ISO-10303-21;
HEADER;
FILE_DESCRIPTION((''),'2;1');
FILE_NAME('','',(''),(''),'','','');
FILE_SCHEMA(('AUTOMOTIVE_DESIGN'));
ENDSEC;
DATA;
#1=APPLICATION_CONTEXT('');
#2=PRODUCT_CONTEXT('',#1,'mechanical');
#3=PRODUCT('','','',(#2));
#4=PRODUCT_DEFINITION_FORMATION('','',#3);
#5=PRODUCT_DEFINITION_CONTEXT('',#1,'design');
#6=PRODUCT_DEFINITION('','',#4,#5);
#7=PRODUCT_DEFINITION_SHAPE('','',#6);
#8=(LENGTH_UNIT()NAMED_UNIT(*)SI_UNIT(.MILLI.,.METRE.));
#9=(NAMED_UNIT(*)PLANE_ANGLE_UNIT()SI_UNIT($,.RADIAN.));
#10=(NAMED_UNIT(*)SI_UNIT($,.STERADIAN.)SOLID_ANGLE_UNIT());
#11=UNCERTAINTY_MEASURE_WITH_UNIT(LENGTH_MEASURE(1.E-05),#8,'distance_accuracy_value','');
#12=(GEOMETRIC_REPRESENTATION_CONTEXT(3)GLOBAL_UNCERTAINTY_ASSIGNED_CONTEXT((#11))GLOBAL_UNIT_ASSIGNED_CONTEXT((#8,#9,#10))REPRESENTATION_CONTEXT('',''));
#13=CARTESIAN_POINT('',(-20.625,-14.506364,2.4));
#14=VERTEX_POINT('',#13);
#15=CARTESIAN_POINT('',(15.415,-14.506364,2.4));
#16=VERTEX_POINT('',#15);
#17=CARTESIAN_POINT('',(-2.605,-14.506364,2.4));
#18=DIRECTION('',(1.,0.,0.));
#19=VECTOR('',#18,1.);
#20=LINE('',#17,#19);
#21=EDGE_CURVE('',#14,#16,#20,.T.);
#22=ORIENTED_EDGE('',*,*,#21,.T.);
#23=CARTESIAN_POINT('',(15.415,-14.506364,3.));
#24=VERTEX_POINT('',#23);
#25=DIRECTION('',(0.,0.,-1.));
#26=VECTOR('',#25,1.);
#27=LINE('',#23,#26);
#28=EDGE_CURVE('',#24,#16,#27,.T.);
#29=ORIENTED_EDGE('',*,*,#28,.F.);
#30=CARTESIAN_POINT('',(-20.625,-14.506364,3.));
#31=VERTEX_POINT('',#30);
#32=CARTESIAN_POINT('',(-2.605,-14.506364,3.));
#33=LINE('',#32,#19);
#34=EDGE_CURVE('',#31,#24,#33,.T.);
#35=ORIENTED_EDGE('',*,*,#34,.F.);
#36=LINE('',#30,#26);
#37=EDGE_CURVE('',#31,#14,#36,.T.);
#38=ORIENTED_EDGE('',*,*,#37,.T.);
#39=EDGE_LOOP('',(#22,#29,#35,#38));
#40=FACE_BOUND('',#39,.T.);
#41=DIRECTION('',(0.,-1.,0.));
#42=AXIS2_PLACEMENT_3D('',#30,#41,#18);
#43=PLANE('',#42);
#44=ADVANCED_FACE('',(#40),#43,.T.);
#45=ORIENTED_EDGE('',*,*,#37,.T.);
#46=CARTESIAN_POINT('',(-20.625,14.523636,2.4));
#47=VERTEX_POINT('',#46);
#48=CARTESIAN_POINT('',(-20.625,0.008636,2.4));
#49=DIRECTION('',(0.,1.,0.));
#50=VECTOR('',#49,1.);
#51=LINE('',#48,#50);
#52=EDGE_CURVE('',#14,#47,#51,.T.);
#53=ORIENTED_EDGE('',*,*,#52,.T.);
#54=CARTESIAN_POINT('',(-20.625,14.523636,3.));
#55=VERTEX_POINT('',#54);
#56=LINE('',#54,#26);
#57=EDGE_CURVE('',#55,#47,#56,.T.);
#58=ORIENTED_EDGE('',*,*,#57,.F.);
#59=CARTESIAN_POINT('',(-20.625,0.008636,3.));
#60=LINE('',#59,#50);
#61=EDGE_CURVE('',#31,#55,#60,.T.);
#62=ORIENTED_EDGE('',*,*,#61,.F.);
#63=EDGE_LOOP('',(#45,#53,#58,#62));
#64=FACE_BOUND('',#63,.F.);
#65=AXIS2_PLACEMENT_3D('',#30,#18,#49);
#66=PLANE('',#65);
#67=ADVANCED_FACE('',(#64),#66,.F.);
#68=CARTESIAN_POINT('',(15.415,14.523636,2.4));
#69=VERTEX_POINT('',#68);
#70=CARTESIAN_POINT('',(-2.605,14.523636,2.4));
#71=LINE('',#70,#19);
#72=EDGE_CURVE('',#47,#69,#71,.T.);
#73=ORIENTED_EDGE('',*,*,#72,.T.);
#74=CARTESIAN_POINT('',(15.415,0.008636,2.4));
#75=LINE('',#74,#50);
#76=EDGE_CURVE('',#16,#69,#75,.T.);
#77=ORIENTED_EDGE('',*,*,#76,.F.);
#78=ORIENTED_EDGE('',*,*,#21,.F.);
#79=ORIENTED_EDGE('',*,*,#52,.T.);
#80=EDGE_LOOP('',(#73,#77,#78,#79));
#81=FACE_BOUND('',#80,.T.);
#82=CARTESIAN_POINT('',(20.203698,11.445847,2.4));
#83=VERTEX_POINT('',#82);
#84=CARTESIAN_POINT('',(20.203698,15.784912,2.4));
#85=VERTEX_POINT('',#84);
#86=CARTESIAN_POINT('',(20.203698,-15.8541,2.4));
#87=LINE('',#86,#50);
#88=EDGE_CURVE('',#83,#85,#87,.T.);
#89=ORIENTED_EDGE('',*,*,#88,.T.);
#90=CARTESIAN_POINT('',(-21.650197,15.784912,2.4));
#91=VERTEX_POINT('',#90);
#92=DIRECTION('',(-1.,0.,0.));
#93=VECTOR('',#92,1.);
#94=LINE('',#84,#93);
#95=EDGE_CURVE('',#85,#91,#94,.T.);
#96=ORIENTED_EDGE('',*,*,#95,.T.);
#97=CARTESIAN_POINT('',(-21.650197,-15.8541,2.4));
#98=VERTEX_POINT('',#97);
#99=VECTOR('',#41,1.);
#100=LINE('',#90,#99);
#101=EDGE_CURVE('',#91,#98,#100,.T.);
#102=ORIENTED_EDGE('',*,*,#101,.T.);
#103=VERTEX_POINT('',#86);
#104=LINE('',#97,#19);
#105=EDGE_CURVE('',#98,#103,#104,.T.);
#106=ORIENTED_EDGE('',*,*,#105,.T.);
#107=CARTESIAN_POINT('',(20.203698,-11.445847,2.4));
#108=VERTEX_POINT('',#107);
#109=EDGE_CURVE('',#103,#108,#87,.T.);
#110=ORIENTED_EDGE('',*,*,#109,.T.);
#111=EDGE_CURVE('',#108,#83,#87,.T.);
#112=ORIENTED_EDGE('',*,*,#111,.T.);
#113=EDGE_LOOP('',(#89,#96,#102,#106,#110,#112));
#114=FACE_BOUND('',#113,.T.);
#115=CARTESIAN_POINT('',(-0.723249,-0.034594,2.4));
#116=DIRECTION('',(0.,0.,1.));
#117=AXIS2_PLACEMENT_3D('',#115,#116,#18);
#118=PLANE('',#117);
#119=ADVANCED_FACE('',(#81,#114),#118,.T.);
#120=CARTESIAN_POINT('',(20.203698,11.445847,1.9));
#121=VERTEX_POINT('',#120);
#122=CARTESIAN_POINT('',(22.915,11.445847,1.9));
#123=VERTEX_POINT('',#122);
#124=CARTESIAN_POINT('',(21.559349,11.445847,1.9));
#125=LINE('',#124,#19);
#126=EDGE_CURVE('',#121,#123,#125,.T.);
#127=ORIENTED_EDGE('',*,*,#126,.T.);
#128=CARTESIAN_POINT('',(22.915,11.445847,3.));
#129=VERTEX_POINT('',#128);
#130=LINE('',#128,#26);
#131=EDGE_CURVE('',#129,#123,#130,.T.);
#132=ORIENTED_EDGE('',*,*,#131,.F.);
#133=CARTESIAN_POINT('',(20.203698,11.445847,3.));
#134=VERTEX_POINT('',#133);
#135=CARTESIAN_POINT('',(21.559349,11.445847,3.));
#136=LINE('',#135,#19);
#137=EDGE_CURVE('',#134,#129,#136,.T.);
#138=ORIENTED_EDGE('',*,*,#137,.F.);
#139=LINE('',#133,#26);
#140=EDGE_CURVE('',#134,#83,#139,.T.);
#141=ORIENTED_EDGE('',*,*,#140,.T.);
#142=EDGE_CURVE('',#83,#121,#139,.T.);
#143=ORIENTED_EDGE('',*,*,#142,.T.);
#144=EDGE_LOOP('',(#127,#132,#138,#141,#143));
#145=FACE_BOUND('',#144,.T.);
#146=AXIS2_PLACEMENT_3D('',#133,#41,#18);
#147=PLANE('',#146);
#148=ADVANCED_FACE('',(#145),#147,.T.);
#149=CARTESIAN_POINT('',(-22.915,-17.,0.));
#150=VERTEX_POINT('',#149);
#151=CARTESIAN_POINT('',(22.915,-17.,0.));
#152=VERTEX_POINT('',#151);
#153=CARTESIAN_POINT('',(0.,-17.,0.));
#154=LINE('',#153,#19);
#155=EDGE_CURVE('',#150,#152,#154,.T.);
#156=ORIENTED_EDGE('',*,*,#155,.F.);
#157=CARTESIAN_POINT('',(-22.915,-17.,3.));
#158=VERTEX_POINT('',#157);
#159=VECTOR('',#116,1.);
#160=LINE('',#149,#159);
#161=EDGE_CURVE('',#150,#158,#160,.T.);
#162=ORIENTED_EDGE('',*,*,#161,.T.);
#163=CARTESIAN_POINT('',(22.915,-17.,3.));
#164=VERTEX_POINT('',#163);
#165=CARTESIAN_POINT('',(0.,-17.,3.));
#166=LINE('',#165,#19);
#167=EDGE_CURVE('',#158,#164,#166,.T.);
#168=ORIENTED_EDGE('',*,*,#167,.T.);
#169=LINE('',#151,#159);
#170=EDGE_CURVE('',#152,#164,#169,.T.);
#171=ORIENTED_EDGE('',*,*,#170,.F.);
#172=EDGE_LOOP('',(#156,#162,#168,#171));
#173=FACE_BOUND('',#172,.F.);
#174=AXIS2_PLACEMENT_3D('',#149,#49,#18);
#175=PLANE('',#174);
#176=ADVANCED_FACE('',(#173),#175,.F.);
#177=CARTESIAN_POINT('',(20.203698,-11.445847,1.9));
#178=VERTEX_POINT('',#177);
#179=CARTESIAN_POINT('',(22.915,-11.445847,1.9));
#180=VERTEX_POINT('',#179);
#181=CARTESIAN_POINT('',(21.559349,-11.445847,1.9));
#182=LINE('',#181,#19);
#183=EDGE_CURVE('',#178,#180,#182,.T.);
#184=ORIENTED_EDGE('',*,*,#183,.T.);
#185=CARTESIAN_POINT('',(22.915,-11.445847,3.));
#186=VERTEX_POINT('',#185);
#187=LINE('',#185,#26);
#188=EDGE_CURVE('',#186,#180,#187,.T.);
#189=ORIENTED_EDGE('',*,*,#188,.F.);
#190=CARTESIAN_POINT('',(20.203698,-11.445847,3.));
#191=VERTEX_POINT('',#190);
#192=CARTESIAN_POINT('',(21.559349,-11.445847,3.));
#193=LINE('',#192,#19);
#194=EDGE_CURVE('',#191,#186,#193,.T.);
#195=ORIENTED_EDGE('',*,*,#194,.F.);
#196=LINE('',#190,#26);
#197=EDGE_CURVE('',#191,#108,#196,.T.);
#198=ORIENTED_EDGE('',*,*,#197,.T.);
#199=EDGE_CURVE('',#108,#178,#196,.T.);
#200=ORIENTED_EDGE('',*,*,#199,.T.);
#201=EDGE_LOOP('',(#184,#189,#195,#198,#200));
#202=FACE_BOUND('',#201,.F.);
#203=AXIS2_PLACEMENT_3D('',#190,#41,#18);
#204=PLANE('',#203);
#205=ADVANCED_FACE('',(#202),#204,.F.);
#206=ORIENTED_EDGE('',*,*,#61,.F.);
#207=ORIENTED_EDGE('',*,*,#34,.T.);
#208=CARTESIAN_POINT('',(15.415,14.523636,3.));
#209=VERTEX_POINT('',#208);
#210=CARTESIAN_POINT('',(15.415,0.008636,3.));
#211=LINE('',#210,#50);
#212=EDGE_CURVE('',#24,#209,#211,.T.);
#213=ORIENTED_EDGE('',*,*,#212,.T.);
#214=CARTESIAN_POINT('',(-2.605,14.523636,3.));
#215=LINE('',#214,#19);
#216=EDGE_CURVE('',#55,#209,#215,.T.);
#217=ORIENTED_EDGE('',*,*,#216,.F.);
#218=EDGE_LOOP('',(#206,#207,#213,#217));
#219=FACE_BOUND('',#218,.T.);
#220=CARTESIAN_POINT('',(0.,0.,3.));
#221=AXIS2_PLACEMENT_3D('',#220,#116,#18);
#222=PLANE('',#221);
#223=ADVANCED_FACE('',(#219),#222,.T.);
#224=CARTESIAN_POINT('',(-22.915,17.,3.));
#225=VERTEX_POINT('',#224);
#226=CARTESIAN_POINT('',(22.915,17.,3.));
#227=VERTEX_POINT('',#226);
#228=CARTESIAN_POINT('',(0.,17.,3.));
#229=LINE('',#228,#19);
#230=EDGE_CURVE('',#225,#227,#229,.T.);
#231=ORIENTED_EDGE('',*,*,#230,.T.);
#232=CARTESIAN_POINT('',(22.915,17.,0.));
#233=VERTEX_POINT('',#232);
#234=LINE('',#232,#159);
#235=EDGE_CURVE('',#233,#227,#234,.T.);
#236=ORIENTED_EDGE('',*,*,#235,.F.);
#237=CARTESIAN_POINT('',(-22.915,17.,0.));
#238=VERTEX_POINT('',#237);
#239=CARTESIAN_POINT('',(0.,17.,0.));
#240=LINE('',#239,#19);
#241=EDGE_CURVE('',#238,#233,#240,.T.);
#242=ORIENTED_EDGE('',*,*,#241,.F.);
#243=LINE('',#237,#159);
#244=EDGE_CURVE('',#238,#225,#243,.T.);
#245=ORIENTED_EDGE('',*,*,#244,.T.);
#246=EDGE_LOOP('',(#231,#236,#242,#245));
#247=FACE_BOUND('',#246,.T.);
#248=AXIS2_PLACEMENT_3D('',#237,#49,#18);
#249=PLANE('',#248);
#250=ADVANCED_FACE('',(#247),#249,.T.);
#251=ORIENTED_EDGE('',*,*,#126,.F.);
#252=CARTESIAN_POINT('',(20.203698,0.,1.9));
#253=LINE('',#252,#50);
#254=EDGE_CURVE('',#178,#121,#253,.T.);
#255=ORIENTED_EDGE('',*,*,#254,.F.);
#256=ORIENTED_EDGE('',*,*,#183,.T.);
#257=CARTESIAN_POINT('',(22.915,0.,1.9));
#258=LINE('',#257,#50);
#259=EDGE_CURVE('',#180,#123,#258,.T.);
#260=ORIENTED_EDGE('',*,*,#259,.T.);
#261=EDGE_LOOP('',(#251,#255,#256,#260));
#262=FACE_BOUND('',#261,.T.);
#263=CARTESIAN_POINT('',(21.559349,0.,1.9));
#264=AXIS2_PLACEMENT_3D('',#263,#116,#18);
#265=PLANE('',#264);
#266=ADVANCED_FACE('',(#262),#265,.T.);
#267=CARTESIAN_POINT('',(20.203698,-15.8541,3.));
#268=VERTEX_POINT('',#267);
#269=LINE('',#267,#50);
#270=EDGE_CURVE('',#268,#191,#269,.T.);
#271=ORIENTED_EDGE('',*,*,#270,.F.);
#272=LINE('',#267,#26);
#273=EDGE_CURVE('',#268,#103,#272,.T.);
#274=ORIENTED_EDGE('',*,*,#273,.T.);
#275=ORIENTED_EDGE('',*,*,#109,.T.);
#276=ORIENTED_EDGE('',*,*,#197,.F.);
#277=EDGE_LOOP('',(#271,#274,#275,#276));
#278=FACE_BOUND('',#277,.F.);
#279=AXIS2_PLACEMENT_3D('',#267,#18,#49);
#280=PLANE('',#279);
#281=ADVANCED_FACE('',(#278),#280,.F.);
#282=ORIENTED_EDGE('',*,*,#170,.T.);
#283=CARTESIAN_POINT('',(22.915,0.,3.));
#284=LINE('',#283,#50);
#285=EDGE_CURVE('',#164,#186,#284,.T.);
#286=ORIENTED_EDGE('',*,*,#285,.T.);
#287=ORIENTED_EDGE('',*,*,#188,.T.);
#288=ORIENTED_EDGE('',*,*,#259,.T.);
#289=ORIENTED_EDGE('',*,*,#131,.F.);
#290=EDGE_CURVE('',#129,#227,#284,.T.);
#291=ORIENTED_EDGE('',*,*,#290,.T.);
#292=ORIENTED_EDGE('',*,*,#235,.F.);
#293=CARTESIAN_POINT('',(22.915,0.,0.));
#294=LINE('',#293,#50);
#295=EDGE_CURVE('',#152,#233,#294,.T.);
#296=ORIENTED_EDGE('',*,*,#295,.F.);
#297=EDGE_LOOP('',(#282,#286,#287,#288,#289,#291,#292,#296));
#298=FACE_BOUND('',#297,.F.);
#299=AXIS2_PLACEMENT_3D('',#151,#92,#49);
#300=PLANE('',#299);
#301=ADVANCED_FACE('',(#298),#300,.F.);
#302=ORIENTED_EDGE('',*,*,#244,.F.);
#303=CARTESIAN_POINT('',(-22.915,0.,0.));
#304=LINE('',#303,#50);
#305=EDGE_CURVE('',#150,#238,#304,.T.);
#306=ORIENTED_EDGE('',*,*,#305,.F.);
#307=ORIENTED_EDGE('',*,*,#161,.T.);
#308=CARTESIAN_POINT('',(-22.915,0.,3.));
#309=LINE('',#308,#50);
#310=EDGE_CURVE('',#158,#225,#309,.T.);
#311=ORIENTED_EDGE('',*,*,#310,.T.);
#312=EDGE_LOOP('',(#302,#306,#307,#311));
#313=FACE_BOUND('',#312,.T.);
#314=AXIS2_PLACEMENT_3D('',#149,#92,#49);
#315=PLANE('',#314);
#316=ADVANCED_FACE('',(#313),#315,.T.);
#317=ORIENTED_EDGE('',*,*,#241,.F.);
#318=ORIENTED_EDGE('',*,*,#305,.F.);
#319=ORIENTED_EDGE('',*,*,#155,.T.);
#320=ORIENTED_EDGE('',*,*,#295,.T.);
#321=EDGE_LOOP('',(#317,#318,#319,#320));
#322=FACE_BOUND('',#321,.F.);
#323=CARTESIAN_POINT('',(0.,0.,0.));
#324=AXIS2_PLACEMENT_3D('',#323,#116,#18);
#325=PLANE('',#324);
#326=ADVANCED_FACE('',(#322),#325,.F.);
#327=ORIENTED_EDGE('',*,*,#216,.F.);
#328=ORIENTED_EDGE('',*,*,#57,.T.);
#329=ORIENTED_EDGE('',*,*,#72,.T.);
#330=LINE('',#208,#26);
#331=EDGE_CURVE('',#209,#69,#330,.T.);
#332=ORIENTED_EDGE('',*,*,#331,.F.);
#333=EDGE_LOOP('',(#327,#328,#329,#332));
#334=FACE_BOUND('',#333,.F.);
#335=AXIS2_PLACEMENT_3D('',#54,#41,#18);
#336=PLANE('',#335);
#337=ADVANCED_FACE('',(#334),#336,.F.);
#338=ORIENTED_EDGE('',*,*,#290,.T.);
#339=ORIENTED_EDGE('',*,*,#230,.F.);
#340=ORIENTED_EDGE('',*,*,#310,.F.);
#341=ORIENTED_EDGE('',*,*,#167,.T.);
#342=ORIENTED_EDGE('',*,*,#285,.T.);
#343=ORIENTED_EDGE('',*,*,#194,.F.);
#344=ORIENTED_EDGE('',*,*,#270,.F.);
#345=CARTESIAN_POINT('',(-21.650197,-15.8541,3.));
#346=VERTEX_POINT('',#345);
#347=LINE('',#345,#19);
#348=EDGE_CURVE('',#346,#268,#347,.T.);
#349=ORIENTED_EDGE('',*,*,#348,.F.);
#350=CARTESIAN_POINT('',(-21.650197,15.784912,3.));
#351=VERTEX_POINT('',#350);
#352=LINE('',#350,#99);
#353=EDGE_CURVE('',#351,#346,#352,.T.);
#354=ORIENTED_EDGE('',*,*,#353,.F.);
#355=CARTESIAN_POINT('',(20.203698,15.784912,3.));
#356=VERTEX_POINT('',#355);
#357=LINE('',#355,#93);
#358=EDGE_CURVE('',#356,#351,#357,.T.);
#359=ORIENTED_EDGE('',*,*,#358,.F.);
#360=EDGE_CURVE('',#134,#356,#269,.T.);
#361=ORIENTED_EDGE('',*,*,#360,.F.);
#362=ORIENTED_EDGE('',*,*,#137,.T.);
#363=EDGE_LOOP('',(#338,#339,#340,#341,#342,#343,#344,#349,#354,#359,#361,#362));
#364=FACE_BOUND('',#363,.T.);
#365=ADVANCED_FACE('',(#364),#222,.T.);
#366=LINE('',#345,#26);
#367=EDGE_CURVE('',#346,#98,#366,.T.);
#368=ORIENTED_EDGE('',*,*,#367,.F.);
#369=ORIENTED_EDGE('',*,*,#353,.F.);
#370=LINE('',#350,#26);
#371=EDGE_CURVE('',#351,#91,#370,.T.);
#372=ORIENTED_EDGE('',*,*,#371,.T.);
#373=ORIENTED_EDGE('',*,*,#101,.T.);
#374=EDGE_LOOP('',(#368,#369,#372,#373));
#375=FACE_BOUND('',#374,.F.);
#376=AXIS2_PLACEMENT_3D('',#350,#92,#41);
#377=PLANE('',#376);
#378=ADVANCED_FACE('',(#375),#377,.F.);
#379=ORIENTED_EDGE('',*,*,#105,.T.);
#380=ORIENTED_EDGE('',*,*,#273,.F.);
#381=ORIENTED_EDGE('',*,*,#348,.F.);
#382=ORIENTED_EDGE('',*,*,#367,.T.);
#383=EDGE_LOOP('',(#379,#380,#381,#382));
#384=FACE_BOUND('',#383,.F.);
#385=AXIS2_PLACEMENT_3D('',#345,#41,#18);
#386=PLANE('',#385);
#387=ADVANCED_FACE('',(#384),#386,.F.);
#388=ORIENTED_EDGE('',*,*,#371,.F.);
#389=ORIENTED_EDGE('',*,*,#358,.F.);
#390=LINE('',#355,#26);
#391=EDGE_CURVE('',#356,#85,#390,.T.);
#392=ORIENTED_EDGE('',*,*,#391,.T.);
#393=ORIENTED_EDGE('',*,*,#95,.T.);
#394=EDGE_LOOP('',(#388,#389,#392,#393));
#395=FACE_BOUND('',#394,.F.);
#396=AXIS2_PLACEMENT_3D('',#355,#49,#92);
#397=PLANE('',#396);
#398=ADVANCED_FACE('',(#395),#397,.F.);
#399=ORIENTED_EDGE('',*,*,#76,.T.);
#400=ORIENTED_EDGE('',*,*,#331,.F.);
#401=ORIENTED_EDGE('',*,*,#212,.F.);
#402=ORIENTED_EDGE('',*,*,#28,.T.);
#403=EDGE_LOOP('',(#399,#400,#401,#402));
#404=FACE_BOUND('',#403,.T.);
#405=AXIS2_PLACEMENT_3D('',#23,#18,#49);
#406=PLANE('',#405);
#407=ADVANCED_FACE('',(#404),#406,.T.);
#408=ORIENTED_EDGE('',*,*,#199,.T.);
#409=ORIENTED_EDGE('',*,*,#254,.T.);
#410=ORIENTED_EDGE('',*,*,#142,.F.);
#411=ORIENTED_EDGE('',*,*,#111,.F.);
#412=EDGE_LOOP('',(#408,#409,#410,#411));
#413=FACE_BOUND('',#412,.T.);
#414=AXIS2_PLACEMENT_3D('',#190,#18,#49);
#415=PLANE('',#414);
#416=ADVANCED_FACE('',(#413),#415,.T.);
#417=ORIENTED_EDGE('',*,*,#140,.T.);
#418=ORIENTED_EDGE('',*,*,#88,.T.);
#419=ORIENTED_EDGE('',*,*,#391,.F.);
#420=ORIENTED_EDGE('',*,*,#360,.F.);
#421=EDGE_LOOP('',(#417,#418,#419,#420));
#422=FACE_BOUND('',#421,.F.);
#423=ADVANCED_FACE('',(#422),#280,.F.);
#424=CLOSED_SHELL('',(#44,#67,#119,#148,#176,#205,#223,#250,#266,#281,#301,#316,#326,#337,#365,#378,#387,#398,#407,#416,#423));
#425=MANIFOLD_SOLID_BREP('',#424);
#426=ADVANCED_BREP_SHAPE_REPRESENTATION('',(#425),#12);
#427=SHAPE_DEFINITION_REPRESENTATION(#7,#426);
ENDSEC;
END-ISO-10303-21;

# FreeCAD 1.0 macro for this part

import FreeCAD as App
import Part
import Sketcher
from FreeCAD import Vector

doc = App.newDocument("Part")
body = doc.addObject("PartDesign::Body", "Body")

# Sketch on XY plane
sketch1 = body.newObject("Sketcher::SketchObject", "Sketch")
sketch1.AttachmentSupport = (doc.getObject("XY_Plane"), [""])
sketch1.MapMode = "FlatFace"
sketch1.addGeometry(Part.LineSegment(Vector(-23, 17, 0), Vector(-23, -17, 0)), False)
sketch1.addGeometry(Part.LineSegment(Vector(-23, -17, 0), Vector(23, -17, 0)), False)
sketch1.addGeometry(Part.LineSegment(Vector(23, -17, 0), Vector(23, 17, 0)), False)
sketch1.addGeometry(Part.LineSegment(Vector(23, 17, 0), Vector(-23, 17, 0)), False)
sketch1.addConstraint(Sketcher.Constraint("Coincident", 0, 2, 1, 1))
sketch1.addConstraint(Sketcher.Constraint("Coincident", 1, 2, 2, 1))
sketch1.addConstraint(Sketcher.Constraint("Coincident", 2, 2, 3, 1))
sketch1.addConstraint(Sketcher.Constraint("Coincident", 3, 2, 0, 1))
sketch1.addConstraint(Sketcher.Constraint("Vertical", 0))
sketch1.addConstraint(Sketcher.Constraint("Horizontal", 1))
sketch1.addConstraint(Sketcher.Constraint("Vertical", 2))
sketch1.addConstraint(Sketcher.Constraint("Horizontal", 3))
sketch1.addConstraint(Sketcher.Constraint("Symmetric", 0, 2, 2, 2, -1, 1))
sketch1.addConstraint(Sketcher.Constraint("DistanceY", 0, 2, 0, 1, 34.0))
sketch1.addConstraint(Sketcher.Constraint("DistanceX", 1, 1, 1, 2, 45.83))
pad1 = body.newObject("PartDesign::Pad", "Pad")
pad1.Profile = sketch1
pad1.Length = 3

# Sketch on XY plane
sketch2 = body.newObject("Sketcher::SketchObject", "Sketch001")
sketch2.AttachmentSupport = (doc.getObject("XY_Plane"), [""])
sketch2.MapMode = "FlatFace"
sketch2.AttachmentOffset = App.Placement(Vector(0, 0, 3), App.Rotation())
sketch2.addGeometry(Part.LineSegment(Vector(20, 16, 0), Vector(-22, 16, 0)), False)
sketch2.addGeometry(Part.LineSegment(Vector(-22, 16, 0), Vector(-22, -16, 0)), False)
sketch2.addGeometry(Part.LineSegment(Vector(-22, -16, 0), Vector(20, -16, 0)), False)
sketch2.addGeometry(Part.LineSegment(Vector(20, -16, 0), Vector(20, 16, 0)), False)
sketch2.addGeometry(Part.LineSegment(Vector(15, -15, 0), Vector(-21, -15, 0)), False)
sketch2.addGeometry(Part.LineSegment(Vector(-21, -15, 0), Vector(-21, 15, 0)), False)
sketch2.addGeometry(Part.LineSegment(Vector(-21, 15, 0), Vector(15, 15, 0)), False)
sketch2.addGeometry(Part.LineSegment(Vector(15, 15, 0), Vector(15, -15, 0)), False)
sketch2.addConstraint(Sketcher.Constraint("Coincident", 0, 2, 1, 1))
sketch2.addConstraint(Sketcher.Constraint("Coincident", 1, 2, 2, 1))
sketch2.addConstraint(Sketcher.Constraint("Coincident", 2, 2, 3, 1))
sketch2.addConstraint(Sketcher.Constraint("Coincident", 3, 2, 0, 1))
sketch2.addConstraint(Sketcher.Constraint("Coincident", 4, 2, 5, 1))
sketch2.addConstraint(Sketcher.Constraint("Coincident", 5, 2, 6, 1))
sketch2.addConstraint(Sketcher.Constraint("Coincident", 6, 2, 7, 1))
sketch2.addConstraint(Sketcher.Constraint("Coincident", 7, 2, 4, 1))
sketch2.addConstraint(Sketcher.Constraint("Horizontal", 0))
sketch2.addConstraint(Sketcher.Constraint("Vertical", 1))
sketch2.addConstraint(Sketcher.Constraint("Horizontal", 2))
sketch2.addConstraint(Sketcher.Constraint("Vertical", 3))
sketch2.addConstraint(Sketcher.Constraint("Horizontal", 4))
sketch2.addConstraint(Sketcher.Constraint("Vertical", 5))
sketch2.addConstraint(Sketcher.Constraint("Horizontal", 6))
sketch2.addConstraint(Sketcher.Constraint("Vertical", 7))
sketch2.addConstraint(Sketcher.Constraint("DistanceX", 4, 2, 4, 1, 36.04))
sketch2.addConstraint(Sketcher.Constraint("DistanceY", 5, 1, 5, 2, 29.03))
sketch2.addConstraint(Sketcher.Constraint("DistanceX", 4, 2, -1, 1, 20.625))
sketch2.addConstraint(Sketcher.Constraint("DistanceY", 1, 2, -1, 1, 15.8541))
sketch2.addConstraint(Sketcher.Constraint("DistanceX", 4, 2, 2, 2, 40.828698))
sketch2.addConstraint(Sketcher.Constraint("DistanceX", 0, 2, 0, 1, 41.853895))
sketch2.addConstraint(Sketcher.Constraint("DistanceY", 1, 2, 1, 1, 31.639012))
sketch2.addConstraint(Sketcher.Constraint("DistanceY", 4, 2, -1, 1, 14.506364))
pocket1 = body.newObject("PartDesign::Pocket", "Pocket")
pocket1.Profile = sketch2
pocket1.Length = 0.6

# Sketch on XY plane
sketch3 = body.newObject("Sketcher::SketchObject", "Sketch002")
sketch3.AttachmentSupport = (doc.getObject("XY_Plane"), [""])
sketch3.MapMode = "FlatFace"
sketch3.AttachmentOffset = App.Placement(Vector(0, 0, 3), App.Rotation())
sketch3.addGeometry(Part.LineSegment(Vector(20.2, 11.4, 0), Vector(20.2, -11.4, 0)), False)
sketch3.addGeometry(Part.LineSegment(Vector(20.2, -11.4, 0), Vector(22.9, -11.4, 0)), False)
sketch3.addGeometry(Part.LineSegment(Vector(22.9, -11.4, 0), Vector(22.9, 11.4, 0)), False)
sketch3.addGeometry(Part.LineSegment(Vector(22.9, 11.4, 0), Vector(20.2, 11.4, 0)), False)
sketch3.addConstraint(Sketcher.Constraint("Coincident", 0, 2, 1, 1))
sketch3.addConstraint(Sketcher.Constraint("Coincident", 1, 2, 2, 1))
sketch3.addConstraint(Sketcher.Constraint("Coincident", 2, 2, 3, 1))
sketch3.addConstraint(Sketcher.Constraint("Coincident", 3, 2, 0, 1))
sketch3.addConstraint(Sketcher.Constraint("Vertical", 0))
sketch3.addConstraint(Sketcher.Constraint("Horizontal", 1))
sketch3.addConstraint(Sketcher.Constraint("Vertical", 2))
sketch3.addConstraint(Sketcher.Constraint("Horizontal", 3))
sketch3.addConstraint(Sketcher.Constraint("DistanceX", 1, 1, 1, 2, 2.711302))
sketch3.addConstraint(Sketcher.Constraint("DistanceX", -1, 1, 1, 2, 22.915))
sketch3.addConstraint(Sketcher.Constraint("DistanceY", 0, 2, 0, 1, 22.891694))
sketch3.addConstraint(Sketcher.Constraint("DistanceY", 0, 2, -1, 1, 11.445847))
pocket2 = body.newObject("PartDesign::Pocket", "Pocket001")
pocket2.Profile = sketch3
pocket2.Length = 1.1

doc.recompute()
